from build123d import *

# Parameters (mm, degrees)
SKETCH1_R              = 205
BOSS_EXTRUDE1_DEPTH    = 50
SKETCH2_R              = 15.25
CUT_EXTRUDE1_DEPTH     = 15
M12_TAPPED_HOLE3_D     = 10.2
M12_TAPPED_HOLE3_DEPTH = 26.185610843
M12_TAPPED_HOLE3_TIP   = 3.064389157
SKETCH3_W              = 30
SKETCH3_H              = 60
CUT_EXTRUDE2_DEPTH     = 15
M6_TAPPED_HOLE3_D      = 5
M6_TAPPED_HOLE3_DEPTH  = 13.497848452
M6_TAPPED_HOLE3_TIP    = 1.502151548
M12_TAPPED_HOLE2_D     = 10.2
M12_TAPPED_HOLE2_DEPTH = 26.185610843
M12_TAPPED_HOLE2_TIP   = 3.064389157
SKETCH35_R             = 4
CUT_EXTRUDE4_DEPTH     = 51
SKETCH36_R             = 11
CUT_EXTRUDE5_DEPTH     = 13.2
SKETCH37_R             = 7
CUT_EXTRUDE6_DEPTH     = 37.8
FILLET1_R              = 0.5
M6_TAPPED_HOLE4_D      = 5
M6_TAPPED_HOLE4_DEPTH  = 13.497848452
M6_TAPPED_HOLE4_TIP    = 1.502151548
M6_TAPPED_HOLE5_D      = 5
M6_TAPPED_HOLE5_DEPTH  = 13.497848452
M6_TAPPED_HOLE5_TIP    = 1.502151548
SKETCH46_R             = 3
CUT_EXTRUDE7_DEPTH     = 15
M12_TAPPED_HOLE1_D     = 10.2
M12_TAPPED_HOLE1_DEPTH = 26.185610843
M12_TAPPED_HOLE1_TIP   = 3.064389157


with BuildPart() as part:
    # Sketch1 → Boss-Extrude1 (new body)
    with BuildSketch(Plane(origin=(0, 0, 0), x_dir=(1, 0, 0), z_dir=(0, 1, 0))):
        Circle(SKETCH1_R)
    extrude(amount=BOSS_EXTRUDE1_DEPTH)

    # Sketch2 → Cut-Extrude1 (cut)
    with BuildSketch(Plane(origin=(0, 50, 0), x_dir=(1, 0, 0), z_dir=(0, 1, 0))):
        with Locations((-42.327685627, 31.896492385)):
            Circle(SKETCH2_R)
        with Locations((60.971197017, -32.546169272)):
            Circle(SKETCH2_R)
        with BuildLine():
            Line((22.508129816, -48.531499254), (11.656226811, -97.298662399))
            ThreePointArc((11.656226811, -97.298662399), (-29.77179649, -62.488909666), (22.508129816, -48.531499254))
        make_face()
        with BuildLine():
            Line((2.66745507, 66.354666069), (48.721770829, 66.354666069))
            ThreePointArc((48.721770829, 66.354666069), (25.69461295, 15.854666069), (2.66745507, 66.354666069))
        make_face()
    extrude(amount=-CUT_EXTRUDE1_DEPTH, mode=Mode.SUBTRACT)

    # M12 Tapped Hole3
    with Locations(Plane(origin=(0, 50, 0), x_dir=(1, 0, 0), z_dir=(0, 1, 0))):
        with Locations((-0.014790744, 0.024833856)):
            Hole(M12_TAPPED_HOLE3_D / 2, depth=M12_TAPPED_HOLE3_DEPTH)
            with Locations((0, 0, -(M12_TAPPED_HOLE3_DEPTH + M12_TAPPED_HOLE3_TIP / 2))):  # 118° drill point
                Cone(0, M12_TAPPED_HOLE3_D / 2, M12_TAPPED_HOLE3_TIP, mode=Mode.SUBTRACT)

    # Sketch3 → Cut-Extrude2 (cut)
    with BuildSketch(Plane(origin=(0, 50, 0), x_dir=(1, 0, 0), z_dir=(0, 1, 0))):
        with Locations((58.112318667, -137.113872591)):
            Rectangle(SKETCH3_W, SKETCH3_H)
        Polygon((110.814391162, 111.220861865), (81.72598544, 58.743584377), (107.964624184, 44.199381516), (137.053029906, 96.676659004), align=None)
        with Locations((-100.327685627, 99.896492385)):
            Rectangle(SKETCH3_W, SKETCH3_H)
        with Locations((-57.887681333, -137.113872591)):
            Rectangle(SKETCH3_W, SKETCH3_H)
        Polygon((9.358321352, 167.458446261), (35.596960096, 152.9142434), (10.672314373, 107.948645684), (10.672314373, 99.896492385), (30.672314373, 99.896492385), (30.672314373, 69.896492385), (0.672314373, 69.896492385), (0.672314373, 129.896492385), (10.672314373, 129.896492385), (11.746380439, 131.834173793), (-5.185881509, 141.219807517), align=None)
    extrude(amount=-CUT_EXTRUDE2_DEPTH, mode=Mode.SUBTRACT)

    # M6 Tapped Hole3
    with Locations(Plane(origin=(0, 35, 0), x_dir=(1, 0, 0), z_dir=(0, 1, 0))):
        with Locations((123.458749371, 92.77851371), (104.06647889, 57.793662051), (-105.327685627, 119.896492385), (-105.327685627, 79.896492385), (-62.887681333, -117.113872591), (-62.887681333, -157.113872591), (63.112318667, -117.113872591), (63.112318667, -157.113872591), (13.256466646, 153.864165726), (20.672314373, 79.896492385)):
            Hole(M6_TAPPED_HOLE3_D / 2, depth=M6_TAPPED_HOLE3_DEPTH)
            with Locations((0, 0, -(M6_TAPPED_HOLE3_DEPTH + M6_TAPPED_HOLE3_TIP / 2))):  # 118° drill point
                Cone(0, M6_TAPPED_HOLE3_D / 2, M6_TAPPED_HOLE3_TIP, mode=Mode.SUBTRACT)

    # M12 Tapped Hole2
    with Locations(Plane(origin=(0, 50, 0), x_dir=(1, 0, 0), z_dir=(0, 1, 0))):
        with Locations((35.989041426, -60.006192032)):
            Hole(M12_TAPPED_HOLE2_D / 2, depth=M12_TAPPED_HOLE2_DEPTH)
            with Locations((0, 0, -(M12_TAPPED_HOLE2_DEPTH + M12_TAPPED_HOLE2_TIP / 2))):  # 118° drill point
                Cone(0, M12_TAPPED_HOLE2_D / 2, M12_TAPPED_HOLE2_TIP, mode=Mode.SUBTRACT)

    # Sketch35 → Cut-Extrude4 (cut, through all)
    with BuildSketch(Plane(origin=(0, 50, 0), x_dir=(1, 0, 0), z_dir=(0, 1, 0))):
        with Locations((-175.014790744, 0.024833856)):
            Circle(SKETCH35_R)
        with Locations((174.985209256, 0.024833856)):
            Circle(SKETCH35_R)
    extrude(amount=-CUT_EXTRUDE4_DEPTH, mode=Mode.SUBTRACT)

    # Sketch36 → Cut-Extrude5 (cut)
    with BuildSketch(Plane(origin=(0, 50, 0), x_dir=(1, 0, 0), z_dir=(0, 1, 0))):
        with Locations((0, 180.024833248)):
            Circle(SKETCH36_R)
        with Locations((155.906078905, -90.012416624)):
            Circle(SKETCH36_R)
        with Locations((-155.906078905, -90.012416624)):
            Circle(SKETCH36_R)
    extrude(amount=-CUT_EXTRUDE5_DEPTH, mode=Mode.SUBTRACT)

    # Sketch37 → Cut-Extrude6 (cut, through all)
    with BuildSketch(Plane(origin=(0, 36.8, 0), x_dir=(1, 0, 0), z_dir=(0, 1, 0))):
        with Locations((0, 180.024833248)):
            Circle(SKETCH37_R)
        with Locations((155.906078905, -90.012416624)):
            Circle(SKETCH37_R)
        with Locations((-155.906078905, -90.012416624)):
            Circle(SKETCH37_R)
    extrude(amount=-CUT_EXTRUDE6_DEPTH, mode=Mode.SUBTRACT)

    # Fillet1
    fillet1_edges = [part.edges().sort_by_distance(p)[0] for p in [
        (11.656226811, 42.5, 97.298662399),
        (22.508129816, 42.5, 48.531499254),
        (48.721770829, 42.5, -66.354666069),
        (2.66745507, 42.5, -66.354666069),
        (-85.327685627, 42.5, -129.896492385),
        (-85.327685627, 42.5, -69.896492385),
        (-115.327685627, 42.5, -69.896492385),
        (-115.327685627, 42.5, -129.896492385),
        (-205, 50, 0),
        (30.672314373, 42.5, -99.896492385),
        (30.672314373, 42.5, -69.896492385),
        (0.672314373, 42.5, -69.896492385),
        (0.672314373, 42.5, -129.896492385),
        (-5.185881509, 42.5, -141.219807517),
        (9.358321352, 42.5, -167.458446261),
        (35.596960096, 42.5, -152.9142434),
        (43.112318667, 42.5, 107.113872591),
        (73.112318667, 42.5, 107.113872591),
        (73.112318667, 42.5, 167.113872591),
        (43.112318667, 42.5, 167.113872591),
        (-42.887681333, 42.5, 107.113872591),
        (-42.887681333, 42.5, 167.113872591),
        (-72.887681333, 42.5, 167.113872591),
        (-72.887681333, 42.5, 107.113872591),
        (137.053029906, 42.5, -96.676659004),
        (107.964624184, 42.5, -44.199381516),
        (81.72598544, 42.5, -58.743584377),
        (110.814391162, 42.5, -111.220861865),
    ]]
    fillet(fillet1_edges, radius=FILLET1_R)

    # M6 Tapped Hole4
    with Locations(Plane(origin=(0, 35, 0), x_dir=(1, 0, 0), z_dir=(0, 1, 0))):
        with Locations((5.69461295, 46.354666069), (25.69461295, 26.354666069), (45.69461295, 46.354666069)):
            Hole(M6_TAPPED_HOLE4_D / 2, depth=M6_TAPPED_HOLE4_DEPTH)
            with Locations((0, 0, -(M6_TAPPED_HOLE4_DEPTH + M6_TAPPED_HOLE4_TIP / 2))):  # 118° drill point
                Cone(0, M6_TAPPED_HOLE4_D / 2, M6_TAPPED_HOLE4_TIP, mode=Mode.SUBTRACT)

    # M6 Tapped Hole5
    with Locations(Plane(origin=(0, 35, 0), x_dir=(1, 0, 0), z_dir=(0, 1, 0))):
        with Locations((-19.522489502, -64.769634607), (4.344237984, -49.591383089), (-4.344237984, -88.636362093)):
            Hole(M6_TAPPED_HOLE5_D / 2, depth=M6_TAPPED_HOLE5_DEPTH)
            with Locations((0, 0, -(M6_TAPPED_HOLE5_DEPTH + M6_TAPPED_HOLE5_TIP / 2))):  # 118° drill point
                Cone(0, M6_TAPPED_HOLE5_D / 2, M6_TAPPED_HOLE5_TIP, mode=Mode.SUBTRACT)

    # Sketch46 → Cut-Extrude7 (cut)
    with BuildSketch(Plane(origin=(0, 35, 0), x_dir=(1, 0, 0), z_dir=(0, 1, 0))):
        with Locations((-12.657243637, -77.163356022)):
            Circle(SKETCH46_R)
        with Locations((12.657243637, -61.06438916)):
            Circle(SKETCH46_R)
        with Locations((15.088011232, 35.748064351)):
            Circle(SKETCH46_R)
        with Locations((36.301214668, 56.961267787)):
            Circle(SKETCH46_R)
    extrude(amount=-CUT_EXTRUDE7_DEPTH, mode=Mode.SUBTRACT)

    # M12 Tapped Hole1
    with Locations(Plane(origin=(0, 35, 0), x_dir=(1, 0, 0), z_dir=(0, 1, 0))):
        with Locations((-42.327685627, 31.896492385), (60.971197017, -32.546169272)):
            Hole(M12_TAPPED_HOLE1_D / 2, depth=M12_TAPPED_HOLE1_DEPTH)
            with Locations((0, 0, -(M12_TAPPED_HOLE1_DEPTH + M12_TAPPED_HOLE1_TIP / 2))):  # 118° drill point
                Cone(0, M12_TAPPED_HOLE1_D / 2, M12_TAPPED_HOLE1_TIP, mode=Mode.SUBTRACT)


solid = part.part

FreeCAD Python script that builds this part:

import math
import FreeCAD as App
import Part
import Sketcher


def edges_at(feature, points):
    """Names of the edges that pass closest to the given points."""
    edges = feature.Shape.Edges
    near = lambda p: min(range(len(edges)), key=lambda i: edges[i].distToShape(Part.Vertex(*p))[0])
    return sorted({f"Edge{near(p) + 1}" for p in points})


def add_polygon(sketch, points):
    """Adds a closed chain of lines whose ends are joined by coincident constraints."""
    first, n = sketch.GeometryCount, len(points)
    for a, b in zip(points, points[1:] + points[:1]):
        sketch.addGeometry(Part.LineSegment(App.Vector(*a, 0), App.Vector(*b, 0)), False)
    for i in range(n):
        sketch.addConstraint(Sketcher.Constraint("Coincident", first + i, 2, first + (i + 1) % n, 1))

doc = App.newDocument("Part")
body = doc.addObject("PartDesign::Body", "Body")

# Sketch on XZ plane
sketch1 = body.newObject("Sketcher::SketchObject", "Sketch")
sketch1.AttachmentSupport = (doc.getObject("XZ_Plane"), [""])
sketch1.MapMode = "FlatFace"
sketch1.addGeometry(Part.Circle(App.Vector(0, 0, 0), App.Vector(0, 0, 1), 205), False)
sketch1.addConstraint([
    Sketcher.Constraint("Coincident", 0, 3, -1, 1),
    Sketcher.Constraint("Diameter", 0, 410.0),
])
pad1 = body.newObject("PartDesign::Pad", "Pad")
pad1.Profile = sketch1
pad1.Length = 50
pad1.Reversed = True

# Sketch on XZ plane
sketch2 = body.newObject("Sketcher::SketchObject", "Sketch001")
sketch2.AttachmentSupport = (doc.getObject("XZ_Plane"), [""])
sketch2.MapMode = "FlatFace"
sketch2.AttachmentOffset = App.Placement(App.Vector(0, 0, -50), App.Rotation())
sketch2.addGeometry([
    Part.Circle(App.Vector(-42.327686, -31.896492, 0), App.Vector(0, 0, 1), 15.25),  # 0
    Part.Circle(App.Vector(60.971197, 32.546169, 0), App.Vector(0, 0, 1), 15.25),  # 1
    Part.LineSegment(App.Vector(11.656227, 97.298662, 0), App.Vector(22.50813, 48.531499, 0)),  # 2
    Part.ArcOfCircle(Part.Circle(App.Vector(0, 69.113873, 0), App.Vector(0, 0, 1), 30.5), math.radians(67.531753), math.radians(317.558901)),  # 3
    Part.LineSegment(App.Vector(48.721771, -66.354666, 0), App.Vector(2.667455, -66.354666, 0)),  # 4
    Part.ArcOfCircle(Part.Circle(App.Vector(25.694613, -46.354666, 0), App.Vector(0, 0, 1), 30.5), math.radians(-40.97561), math.radians(220.97561)),  # 5
], False)
sketch2.addConstraint([
    Sketcher.Constraint("Coincident", 2, 1, 3, 1),
    Sketcher.Constraint("Coincident", 3, 2, 2, 2),
    Sketcher.Constraint("Coincident", 4, 1, 5, 1),
    Sketcher.Constraint("Coincident", 5, 2, 4, 2),
    Sketcher.Constraint("Horizontal", 4),
    Sketcher.Constraint("Equal", 0, 1),
    Sketcher.Constraint("Equal", 3, 5),
    Sketcher.Constraint("PointOnObject", 3, 3, -2),
    Sketcher.Constraint("Diameter", 0, 30.5),
    Sketcher.Constraint("Radius", 3, 30.5),
    Sketcher.Constraint("DistanceY", 4, 1, 5, 3, 20.0),
    Sketcher.Constraint("DistanceY", -1, 1, 3, 2, 48.531499),
    Sketcher.Constraint("DistanceX", 0, 3, 5, 3, 68.022299),
    Sketcher.Constraint("DistanceY", -1, 1, 1, 3, 32.546169),
    Sketcher.Constraint("DistanceX", -1, 1, 3, 2, 22.50813),
    Sketcher.Constraint("DistanceX", -1, 1, 4, 1, 48.721771),
    Sketcher.Constraint("DistanceY", 0, 3, 1, 3, 64.442662),
    Sketcher.Constraint("DistanceY", 5, 3, 3, 3, 115.468539),
    Sketcher.Constraint("DistanceY", 3, 3, 2, 1, 28.18479),
    Sketcher.Constraint("DistanceX", 2, 1, 1, 3, 49.31497),
])
pocket1 = body.newObject("PartDesign::Pocket", "Pocket")
pocket1.Profile = sketch2
pocket1.Length = 15
pocket1.Reversed = True

# Sketch on XZ plane
sketch3 = body.newObject("Sketcher::SketchObject", "Sketch002")
sketch3.AttachmentSupport = (doc.getObject("XZ_Plane"), [""])
sketch3.MapMode = "FlatFace"
sketch3.AttachmentOffset = App.Placement(App.Vector(0, 0, -50), App.Rotation())
sketch3.addGeometry(Part.Circle(App.Vector(-0.014791, -0.024834, 0), App.Vector(0, 0, 1), 5.1), False)
sketch3.addConstraint([
    Sketcher.Constraint("Diameter", 0, 10.2),
    Sketcher.Constraint("DistanceX", 0, 3, -1, 1, 0.014791),
    Sketcher.Constraint("DistanceY", 0, 3, -1, 1, 0.024834),
])
doc.recompute()
hole = body.newObject("PartDesign::Hole", "Hole")
hole.Profile = sketch3
hole.ThreadType = "None"
hole.Diameter = 10.2
hole.DepthType = "Dimension"
hole.Depth = 26.185611
hole.DrillPoint = "Angled"
hole.DrillPointAngle = 118
hole.Reversed = True

# Sketch on XZ plane
sketch4 = body.newObject("Sketcher::SketchObject", "Sketch003")
sketch4.AttachmentSupport = (doc.getObject("XZ_Plane"), [""])
sketch4.MapMode = "FlatFace"
sketch4.AttachmentOffset = App.Placement(App.Vector(0, 0, -50), App.Rotation())
add_polygon(sketch4, [(43.112319, 107.113873), (43.112319, 167.113873), (73.112319, 167.113873), (73.112319, 107.113873)])  # lines 0-3
add_polygon(sketch4, [(110.814391, -111.220862), (81.725985, -58.743584), (107.964624, -44.199382), (137.05303, -96.676659)])  # lines 4-7
add_polygon(sketch4, [(-115.327686, -129.896492), (-115.327686, -69.896492), (-85.327686, -69.896492), (-85.327686, -129.896492)])  # lines 8-11
add_polygon(sketch4, [(-72.887681, 107.113873), (-72.887681, 167.113873), (-42.887681, 167.113873), (-42.887681, 107.113873)])  # lines 12-15
add_polygon(sketch4, [(35.59696, -152.914243), (9.358321, -167.458446), (-5.185882, -141.219808), (11.74638, -131.834174), (10.672314, -129.896492), (0.672314, -129.896492), (0.672314, -69.896492), (30.672314, -69.896492), (30.672314, -99.896492), (10.672314, -99.896492), (10.672314, -107.948646)])  # lines 16-26
sketch4.addConstraint([
    Sketcher.Constraint("Vertical", 0),
    Sketcher.Constraint("Horizontal", 1),
    Sketcher.Constraint("Vertical", 2),
    Sketcher.Constraint("Horizontal", 3),
    Sketcher.Constraint("Vertical", 8),
    Sketcher.Constraint("Horizontal", 9),
    Sketcher.Constraint("Vertical", 10),
    Sketcher.Constraint("Horizontal", 11),
    Sketcher.Constraint("Vertical", 12),
    Sketcher.Constraint("Horizontal", 13),
    Sketcher.Constraint("Vertical", 14),
    Sketcher.Constraint("Horizontal", 15),
    Sketcher.Constraint("Horizontal", 20),
    Sketcher.Constraint("Vertical", 21),
    Sketcher.Constraint("Horizontal", 22),
    Sketcher.Constraint("Vertical", 23),
    Sketcher.Constraint("Horizontal", 24),
    Sketcher.Constraint("Vertical", 25),
    Sketcher.Constraint("Perpendicular", 4, 5),
    Sketcher.Constraint("Perpendicular", 5, 6),
    Sketcher.Constraint("Perpendicular", 6, 7),
    Sketcher.Constraint("Parallel", 7, 16),
    Sketcher.Constraint("Perpendicular", 16, 17),
    Sketcher.Constraint("Perpendicular", 17, 18),
    Sketcher.Constraint("Perpendicular", 18, 19),
    Sketcher.Constraint("Parallel", 19, 26),
    Sketcher.Constraint("Horizontal", 1, 2, 12, 2),
    Sketcher.Constraint("Horizontal", 3, 2, 14, 2),
    Sketcher.Constraint("Horizontal", 11, 2, 19, 2),
    Sketcher.Constraint("Horizontal", 9, 2, 21, 2),
    Sketcher.Constraint("Vertical", 19, 2, 24, 2),
    Sketcher.Constraint("Equal", 3, 9),
    Sketcher.Constraint("Equal", 11, 13),
    Sketcher.Constraint("Equal", 15, 22),
    Sketcher.Constraint("Equal", 2, 8),
    Sketcher.Constraint("Equal", 22, 23),
    Sketcher.Constraint("Equal", 7, 16),
    Sketcher.Constraint("Equal", 16, 17),
    Sketcher.Constraint("DistanceX", 1, 1, 1, 2, 30.0),
    Sketcher.Constraint("DistanceX", 20, 2, 20, 1, 10.0),
    Sketcher.Constraint("DistanceY", 0, 1, 0, 2, 60.0),
    Sketcher.Constraint("Distance", 4, 60.0),
    Sketcher.Constraint("Distance", 5, 30.0),
    Sketcher.Constraint("DistanceX", 12, 2, 0, 2, 116.0),
    Sketcher.Constraint("DistanceX", 10, 2, 19, 2, 96.0),
    Sketcher.Constraint("Distance", 19, 2.215452),
    Sketcher.Constraint("DistanceY", 25, 2, 25, 1, 8.052153),
    Sketcher.Constraint("DistanceX", -1, 1, 0, 2, 43.112319),
    Sketcher.Constraint("DistanceY", 5, 2, -1, 1, 44.199382),
    Sketcher.Constraint("DistanceX", -1, 1, 6, 2, 137.05303),
    Sketcher.Constraint("DistanceY", 6, 2, -1, 1, 96.676659),
    Sketcher.Constraint("DistanceX", -1, 1, 16, 2, 9.358321),
    Sketcher.Constraint("DistanceY", 6, 2, 2, 2, 203.790532),
    Sketcher.Constraint("DistanceY", 8, 2, 4, 2, 11.152908),
])
pocket2 = body.newObject("PartDesign::Pocket", "Pocket001")
pocket2.Profile = sketch4
pocket2.Length = 15
pocket2.Reversed = True

# Sketch on XZ plane
sketch5 = body.newObject("Sketcher::SketchObject", "Sketch004")
sketch5.AttachmentSupport = (doc.getObject("XZ_Plane"), [""])
sketch5.MapMode = "FlatFace"
sketch5.AttachmentOffset = App.Placement(App.Vector(0, 0, -35), App.Rotation())
sketch5.addGeometry([
    Part.Circle(App.Vector(123.458749, -92.778514, 0), App.Vector(0, 0, 1), 2.5),  # 0
    Part.Circle(App.Vector(104.066479, -57.793662, 0), App.Vector(0, 0, 1), 2.5),  # 1
    Part.Circle(App.Vector(-105.327686, -119.896492, 0), App.Vector(0, 0, 1), 2.5),  # 2
    Part.Circle(App.Vector(-105.327686, -79.896492, 0), App.Vector(0, 0, 1), 2.5),  # 3
    Part.Circle(App.Vector(-62.887681, 117.113873, 0), App.Vector(0, 0, 1), 2.5),  # 4
    Part.Circle(App.Vector(-62.887681, 157.113873, 0), App.Vector(0, 0, 1), 2.5),  # 5
    Part.Circle(App.Vector(63.112319, 117.113873, 0), App.Vector(0, 0, 1), 2.5),  # 6
    Part.Circle(App.Vector(63.112319, 157.113873, 0), App.Vector(0, 0, 1), 2.5),  # 7
    Part.Circle(App.Vector(13.256467, -153.864166, 0), App.Vector(0, 0, 1), 2.5),  # 8
    Part.Circle(App.Vector(20.672314, -79.896492, 0), App.Vector(0, 0, 1), 2.5),  # 9
], False)
sketch5.addConstraint([
    Sketcher.Constraint("Equal", 0, 1),
    Sketcher.Constraint("Equal", 1, 2),
    Sketcher.Constraint("Equal", 2, 3),
    Sketcher.Constraint("Equal", 3, 4),
    Sketcher.Constraint("Equal", 4, 5),
    Sketcher.Constraint("Equal", 5, 6),
    Sketcher.Constraint("Equal", 6, 7),
    Sketcher.Constraint("Equal", 7, 8),
    Sketcher.Constraint("Equal", 8, 9),
    Sketcher.Constraint("Horizontal", 4, 3, 6, 3),
    Sketcher.Constraint("Horizontal", 5, 3, 7, 3),
    Sketcher.Constraint("Horizontal", 3, 3, 9, 3),
    Sketcher.Constraint("Vertical", 2, 3, 3, 3),
    Sketcher.Constraint("Vertical", 4, 3, 5, 3),
    Sketcher.Constraint("Vertical", 6, 3, 7, 3),
    Sketcher.Constraint("Diameter", 0, 5.0),
    Sketcher.Constraint("DistanceY", 2, 3, 3, 3, 40.0),
    Sketcher.Constraint("DistanceY", 4, 3, 5, 3, 40.0),
    Sketcher.Constraint("DistanceX", 4, 3, 6, 3, 126.0),
    Sketcher.Constraint("DistanceX", 3, 3, 9, 3, 126.0),
    Sketcher.Constraint("DistanceX", -1, 1, 0, 3, 123.458749),
    Sketcher.Constraint("DistanceX", -1, 1, 1, 3, 104.066479),
    Sketcher.Constraint("DistanceX", 4, 3, -1, 1, 62.887681),
    Sketcher.Constraint("DistanceY", 0, 3, 1, 3, 34.984852),
    Sketcher.Constraint("DistanceY", 2, 3, 1, 3, 62.10283),
    Sketcher.Constraint("DistanceY", 8, 3, 6, 3, 270.978038),
    Sketcher.Constraint("DistanceY", 0, 3, -1, 1, 92.778514),
    Sketcher.Constraint("DistanceX", 2, 3, -1, 1, 105.327686),
    Sketcher.Constraint("DistanceY", -1, 1, 4, 3, 117.113873),
    Sketcher.Constraint("DistanceX", -1, 1, 8, 3, 13.256467),
])
doc.recompute()
hole2 = body.newObject("PartDesign::Hole", "Hole001")
hole2.Profile = sketch5
hole2.ThreadType = "None"
hole2.Diameter = 5
hole2.DepthType = "Dimension"
hole2.Depth = 13.497848
hole2.DrillPoint = "Angled"
hole2.DrillPointAngle = 118
hole2.Reversed = True

# Sketch on XZ plane
sketch6 = body.newObject("Sketcher::SketchObject", "Sketch005")
sketch6.AttachmentSupport = (doc.getObject("XZ_Plane"), [""])
sketch6.MapMode = "FlatFace"
sketch6.AttachmentOffset = App.Placement(App.Vector(0, 0, -50), App.Rotation())
sketch6.addGeometry(Part.Circle(App.Vector(35.989041, 60.006192, 0), App.Vector(0, 0, 1), 5.1), False)
sketch6.addConstraint([
    Sketcher.Constraint("Diameter", 0, 10.2),
    Sketcher.Constraint("DistanceX", -1, 1, 0, 3, 35.989041),
    Sketcher.Constraint("DistanceY", -1, 1, 0, 3, 60.006192),
])
doc.recompute()
hole3 = body.newObject("PartDesign::Hole", "Hole002")
hole3.Profile = sketch6
hole3.ThreadType = "None"
hole3.Diameter = 10.2
hole3.DepthType = "Dimension"
hole3.Depth = 26.185611
hole3.DrillPoint = "Angled"
hole3.DrillPointAngle = 118
hole3.Reversed = True

# Sketch on XZ plane
sketch7 = body.newObject("Sketcher::SketchObject", "Sketch006")
sketch7.AttachmentSupport = (doc.getObject("XZ_Plane"), [""])
sketch7.MapMode = "FlatFace"
sketch7.AttachmentOffset = App.Placement(App.Vector(0, 0, -50), App.Rotation())
sketch7.addGeometry([
    Part.Circle(App.Vector(-175.014791, -0.024834, 0), App.Vector(0, 0, 1), 4),
    Part.Circle(App.Vector(174.985209, -0.024834, 0), App.Vector(0, 0, 1), 4),
], False)
sketch7.addConstraint([
    Sketcher.Constraint("Equal", 0, 1),
    Sketcher.Constraint("Horizontal", 0, 3, 1, 3),
    Sketcher.Constraint("Diameter", 0, 8.0),
    Sketcher.Constraint("DistanceX", 0, 3, 1, 3, 350.0),
    Sketcher.Constraint("DistanceX", 0, 3, -1, 1, 175.014791),
    Sketcher.Constraint("DistanceY", 0, 3, -1, 1, 0.024834),
])
pocket3 = body.newObject("PartDesign::Pocket", "Pocket002")
pocket3.Profile = sketch7
pocket3.Type = "ThroughAll"
pocket3.Reversed = True

# Sketch on XZ plane
sketch8 = body.newObject("Sketcher::SketchObject", "Sketch007")
sketch8.AttachmentSupport = (doc.getObject("XZ_Plane"), [""])
sketch8.MapMode = "FlatFace"
sketch8.AttachmentOffset = App.Placement(App.Vector(0, 0, -50), App.Rotation())
sketch8.addGeometry([
    Part.Circle(App.Vector(0, -180.024833, 0), App.Vector(0, 0, 1), 11),
    Part.Circle(App.Vector(155.906079, 90.012417, 0), App.Vector(0, 0, 1), 11),
    Part.Circle(App.Vector(-155.906079, 90.012417, 0), App.Vector(0, 0, 1), 11),
], False)
sketch8.addConstraint([
    Sketcher.Constraint("Equal", 0, 1),
    Sketcher.Constraint("Equal", 1, 2),
    Sketcher.Constraint("Symmetric", 1, 3, 2, 3, -2),
    Sketcher.Constraint("PointOnObject", 0, 3, -2),
    Sketcher.Constraint("Diameter", 0, 22.0),
    Sketcher.Constraint("DistanceX", -1, 1, 1, 3, 155.906079),
    Sketcher.Constraint("DistanceY", 0, 3, 1, 3, 270.03725),
    Sketcher.Constraint("DistanceY", 0, 3, -1, 1, 180.024833),
])
pocket4 = body.newObject("PartDesign::Pocket", "Pocket003")
pocket4.Profile = sketch8
pocket4.Length = 13.2
pocket4.Reversed = True

# Sketch on XZ plane
sketch9 = body.newObject("Sketcher::SketchObject", "Sketch008")
sketch9.AttachmentSupport = (doc.getObject("XZ_Plane"), [""])
sketch9.MapMode = "FlatFace"
sketch9.AttachmentOffset = App.Placement(App.Vector(0, 0, -36.8), App.Rotation())
sketch9.addGeometry([
    Part.Circle(App.Vector(0, -180.024833, 0), App.Vector(0, 0, 1), 7),
    Part.Circle(App.Vector(155.906079, 90.012417, 0), App.Vector(0, 0, 1), 7),
    Part.Circle(App.Vector(-155.906079, 90.012417, 0), App.Vector(0, 0, 1), 7),
], False)
sketch9.addConstraint([
    Sketcher.Constraint("Equal", 0, 1),
    Sketcher.Constraint("Equal", 1, 2),
    Sketcher.Constraint("Symmetric", 1, 3, 2, 3, -2),
    Sketcher.Constraint("PointOnObject", 0, 3, -2),
    Sketcher.Constraint("Diameter", 0, 14.0),
    Sketcher.Constraint("DistanceX", -1, 1, 1, 3, 155.906079),
    Sketcher.Constraint("DistanceY", 0, 3, 1, 3, 270.03725),
    Sketcher.Constraint("DistanceY", 0, 3, -1, 1, 180.024833),
])
pocket5 = body.newObject("PartDesign::Pocket", "Pocket004")
pocket5.Profile = sketch9
pocket5.Type = "ThroughAll"
pocket5.Reversed = True
doc.recompute()

fillet = body.newObject("PartDesign::Fillet", "Fillet")
fillet.Base = (pocket5, edges_at(pocket5, [
    (11.656, 42.5, 97.299),
    (22.508, 42.5, 48.531),
    (48.722, 42.5, -66.355),
    (2.667, 42.5, -66.355),
    (-85.328, 42.5, -129.896),
    (-85.328, 42.5, -69.896),
    (-115.328, 42.5, -69.896),
    (-115.328, 42.5, -129.896),
    (-205, 50, 0),
    (30.672, 42.5, -99.896),
    (30.672, 42.5, -69.896),
    (0.672, 42.5, -69.896),
    (0.672, 42.5, -129.896),
    (-5.186, 42.5, -141.22),
    (9.358, 42.5, -167.458),
    (35.597, 42.5, -152.914),
    (43.112, 42.5, 107.114),
    (73.112, 42.5, 107.114),
    (73.112, 42.5, 167.114),
    (43.112, 42.5, 167.114),
    (-42.888, 42.5, 107.114),
    (-42.888, 42.5, 167.114),
    (-72.888, 42.5, 167.114),
    (-72.888, 42.5, 107.114),
    (137.053, 42.5, -96.677),
    (107.965, 42.5, -44.199),
    (81.726, 42.5, -58.744),
    (110.814, 42.5, -111.221),
]))
fillet.Radius = 0.5

# Sketch on XZ plane
sketch10 = body.newObject("Sketcher::SketchObject", "Sketch009")
sketch10.AttachmentSupport = (doc.getObject("XZ_Plane"), [""])
sketch10.MapMode = "FlatFace"
sketch10.AttachmentOffset = App.Placement(App.Vector(0, 0, -35), App.Rotation())
sketch10.addGeometry([
    Part.Circle(App.Vector(5.694613, -46.354666, 0), App.Vector(0, 0, 1), 2.5),
    Part.Circle(App.Vector(25.694613, -26.354666, 0), App.Vector(0, 0, 1), 2.5),
    Part.Circle(App.Vector(45.694613, -46.354666, 0), App.Vector(0, 0, 1), 2.5),
], False)
sketch10.addConstraint([
    Sketcher.Constraint("Equal", 0, 1),
    Sketcher.Constraint("Equal", 1, 2),
    Sketcher.Constraint("Horizontal", 0, 3, 2, 3),
    Sketcher.Constraint("Diameter", 0, 5.0),
    Sketcher.Constraint("DistanceX", 0, 3, 1, 3, 20.0),
    Sketcher.Constraint("DistanceY", 0, 3, 1, 3, 20.0),
    Sketcher.Constraint("DistanceX", 1, 3, 2, 3, 20.0),
    Sketcher.Constraint("DistanceX", -1, 1, 0, 3, 5.694613),
    Sketcher.Constraint("DistanceY", 0, 3, -1, 1, 46.354666),
])
doc.recompute()
hole4 = body.newObject("PartDesign::Hole", "Hole003")
hole4.Profile = sketch10
hole4.ThreadType = "None"
hole4.Diameter = 5
hole4.DepthType = "Dimension"
hole4.Depth = 13.497848
hole4.DrillPoint = "Angled"
hole4.DrillPointAngle = 118
hole4.Reversed = True

# Sketch on XZ plane
sketch11 = body.newObject("Sketcher::SketchObject", "Sketch010")
sketch11.AttachmentSupport = (doc.getObject("XZ_Plane"), [""])
sketch11.MapMode = "FlatFace"
sketch11.AttachmentOffset = App.Placement(App.Vector(0, 0, -35), App.Rotation())
sketch11.addGeometry([
    Part.Circle(App.Vector(-19.52249, 64.769635, 0), App.Vector(0, 0, 1), 2.5),
    Part.Circle(App.Vector(4.344238, 49.591383, 0), App.Vector(0, 0, 1), 2.5),
    Part.Circle(App.Vector(-4.344238, 88.636362, 0), App.Vector(0, 0, 1), 2.5),
], False)
sketch11.addConstraint([
    Sketcher.Constraint("Equal", 0, 1),
    Sketcher.Constraint("Equal", 1, 2),
    Sketcher.Constraint("Diameter", 0, 5.0),
    Sketcher.Constraint("DistanceX", 0, 3, -1, 1, 19.52249),
    Sketcher.Constraint("DistanceY", 1, 3, 0, 3, 15.178252),
    Sketcher.Constraint("DistanceX", 0, 3, 2, 3, 15.178252),
    Sketcher.Constraint("DistanceY", 1, 3, 2, 3, 39.044979),
    Sketcher.Constraint("DistanceY", -1, 1, 0, 3, 64.769635),
    Sketcher.Constraint("DistanceX", -1, 1, 1, 3, 4.344238),
])
doc.recompute()
hole5 = body.newObject("PartDesign::Hole", "Hole004")
hole5.Profile = sketch11
hole5.ThreadType = "None"
hole5.Diameter = 5
hole5.DepthType = "Dimension"
hole5.Depth = 13.497848
hole5.DrillPoint = "Angled"
hole5.DrillPointAngle = 118
hole5.Reversed = True

# Sketch on XZ plane
sketch12 = body.newObject("Sketcher::SketchObject", "Sketch011")
sketch12.AttachmentSupport = (doc.getObject("XZ_Plane"), [""])
sketch12.MapMode = "FlatFace"
sketch12.AttachmentOffset = App.Placement(App.Vector(0, 0, -35), App.Rotation())
sketch12.addGeometry([
    Part.Circle(App.Vector(-12.657244, 77.163356, 0), App.Vector(0, 0, 1), 3),
    Part.Circle(App.Vector(12.657244, 61.064389, 0), App.Vector(0, 0, 1), 3),
    Part.Circle(App.Vector(15.088011, -35.748064, 0), App.Vector(0, 0, 1), 3),
    Part.Circle(App.Vector(36.301215, -56.961268, 0), App.Vector(0, 0, 1), 3),
], False)
sketch12.addConstraint([
    Sketcher.Constraint("Equal", 0, 1),
    Sketcher.Constraint("Equal", 1, 2),
    Sketcher.Constraint("Equal", 2, 3),
    Sketcher.Constraint("Diameter", 0, 6.0),
    Sketcher.Constraint("DistanceY", -1, 1, 1, 3, 61.064389),
    Sketcher.Constraint("DistanceX", -1, 1, 2, 3, 15.088011),
    Sketcher.Constraint("DistanceY", 2, 3, 0, 3, 112.91142),
    Sketcher.Constraint("DistanceX", 1, 3, 3, 3, 23.643971),
    Sketcher.Constraint("DistanceX", 0, 3, 3, 3, 48.958458),
    Sketcher.Constraint("DistanceX", 0, 3, -1, 1, 12.657244),
    Sketcher.Constraint("DistanceY", -1, 1, 0, 3, 77.163356),
    Sketcher.Constraint("DistanceY", 3, 3, -1, 1, 56.961268),
])
pocket6 = body.newObject("PartDesign::Pocket", "Pocket005")
pocket6.Profile = sketch12
pocket6.Length = 15
pocket6.Reversed = True

# Sketch on XZ plane
sketch13 = body.newObject("Sketcher::SketchObject", "Sketch012")
sketch13.AttachmentSupport = (doc.getObject("XZ_Plane"), [""])
sketch13.MapMode = "FlatFace"
sketch13.AttachmentOffset = App.Placement(App.Vector(0, 0, -35), App.Rotation())
sketch13.addGeometry([
    Part.Circle(App.Vector(-42.327686, -31.896492, 0), App.Vector(0, 0, 1), 5.1),
    Part.Circle(App.Vector(60.971197, 32.546169, 0), App.Vector(0, 0, 1), 5.1),
], False)
sketch13.addConstraint([
    Sketcher.Constraint("Equal", 0, 1),
    Sketcher.Constraint("Diameter", 0, 10.2),
    Sketcher.Constraint("DistanceY", -1, 1, 1, 3, 32.546169),
    Sketcher.Constraint("DistanceY", 0, 3, 1, 3, 64.442662),
    Sketcher.Constraint("DistanceX", 0, 3, -1, 1, 42.327686),
    Sketcher.Constraint("DistanceX", -1, 1, 1, 3, 60.971197),
])
doc.recompute()
hole6 = body.newObject("PartDesign::Hole", "Hole005")
hole6.Profile = sketch13
hole6.ThreadType = "None"
hole6.Diameter = 10.2
hole6.DepthType = "Dimension"
hole6.Depth = 26.185611
hole6.DrillPoint = "Angled"
hole6.DrillPointAngle = 118
hole6.Reversed = True

doc.recompute()
